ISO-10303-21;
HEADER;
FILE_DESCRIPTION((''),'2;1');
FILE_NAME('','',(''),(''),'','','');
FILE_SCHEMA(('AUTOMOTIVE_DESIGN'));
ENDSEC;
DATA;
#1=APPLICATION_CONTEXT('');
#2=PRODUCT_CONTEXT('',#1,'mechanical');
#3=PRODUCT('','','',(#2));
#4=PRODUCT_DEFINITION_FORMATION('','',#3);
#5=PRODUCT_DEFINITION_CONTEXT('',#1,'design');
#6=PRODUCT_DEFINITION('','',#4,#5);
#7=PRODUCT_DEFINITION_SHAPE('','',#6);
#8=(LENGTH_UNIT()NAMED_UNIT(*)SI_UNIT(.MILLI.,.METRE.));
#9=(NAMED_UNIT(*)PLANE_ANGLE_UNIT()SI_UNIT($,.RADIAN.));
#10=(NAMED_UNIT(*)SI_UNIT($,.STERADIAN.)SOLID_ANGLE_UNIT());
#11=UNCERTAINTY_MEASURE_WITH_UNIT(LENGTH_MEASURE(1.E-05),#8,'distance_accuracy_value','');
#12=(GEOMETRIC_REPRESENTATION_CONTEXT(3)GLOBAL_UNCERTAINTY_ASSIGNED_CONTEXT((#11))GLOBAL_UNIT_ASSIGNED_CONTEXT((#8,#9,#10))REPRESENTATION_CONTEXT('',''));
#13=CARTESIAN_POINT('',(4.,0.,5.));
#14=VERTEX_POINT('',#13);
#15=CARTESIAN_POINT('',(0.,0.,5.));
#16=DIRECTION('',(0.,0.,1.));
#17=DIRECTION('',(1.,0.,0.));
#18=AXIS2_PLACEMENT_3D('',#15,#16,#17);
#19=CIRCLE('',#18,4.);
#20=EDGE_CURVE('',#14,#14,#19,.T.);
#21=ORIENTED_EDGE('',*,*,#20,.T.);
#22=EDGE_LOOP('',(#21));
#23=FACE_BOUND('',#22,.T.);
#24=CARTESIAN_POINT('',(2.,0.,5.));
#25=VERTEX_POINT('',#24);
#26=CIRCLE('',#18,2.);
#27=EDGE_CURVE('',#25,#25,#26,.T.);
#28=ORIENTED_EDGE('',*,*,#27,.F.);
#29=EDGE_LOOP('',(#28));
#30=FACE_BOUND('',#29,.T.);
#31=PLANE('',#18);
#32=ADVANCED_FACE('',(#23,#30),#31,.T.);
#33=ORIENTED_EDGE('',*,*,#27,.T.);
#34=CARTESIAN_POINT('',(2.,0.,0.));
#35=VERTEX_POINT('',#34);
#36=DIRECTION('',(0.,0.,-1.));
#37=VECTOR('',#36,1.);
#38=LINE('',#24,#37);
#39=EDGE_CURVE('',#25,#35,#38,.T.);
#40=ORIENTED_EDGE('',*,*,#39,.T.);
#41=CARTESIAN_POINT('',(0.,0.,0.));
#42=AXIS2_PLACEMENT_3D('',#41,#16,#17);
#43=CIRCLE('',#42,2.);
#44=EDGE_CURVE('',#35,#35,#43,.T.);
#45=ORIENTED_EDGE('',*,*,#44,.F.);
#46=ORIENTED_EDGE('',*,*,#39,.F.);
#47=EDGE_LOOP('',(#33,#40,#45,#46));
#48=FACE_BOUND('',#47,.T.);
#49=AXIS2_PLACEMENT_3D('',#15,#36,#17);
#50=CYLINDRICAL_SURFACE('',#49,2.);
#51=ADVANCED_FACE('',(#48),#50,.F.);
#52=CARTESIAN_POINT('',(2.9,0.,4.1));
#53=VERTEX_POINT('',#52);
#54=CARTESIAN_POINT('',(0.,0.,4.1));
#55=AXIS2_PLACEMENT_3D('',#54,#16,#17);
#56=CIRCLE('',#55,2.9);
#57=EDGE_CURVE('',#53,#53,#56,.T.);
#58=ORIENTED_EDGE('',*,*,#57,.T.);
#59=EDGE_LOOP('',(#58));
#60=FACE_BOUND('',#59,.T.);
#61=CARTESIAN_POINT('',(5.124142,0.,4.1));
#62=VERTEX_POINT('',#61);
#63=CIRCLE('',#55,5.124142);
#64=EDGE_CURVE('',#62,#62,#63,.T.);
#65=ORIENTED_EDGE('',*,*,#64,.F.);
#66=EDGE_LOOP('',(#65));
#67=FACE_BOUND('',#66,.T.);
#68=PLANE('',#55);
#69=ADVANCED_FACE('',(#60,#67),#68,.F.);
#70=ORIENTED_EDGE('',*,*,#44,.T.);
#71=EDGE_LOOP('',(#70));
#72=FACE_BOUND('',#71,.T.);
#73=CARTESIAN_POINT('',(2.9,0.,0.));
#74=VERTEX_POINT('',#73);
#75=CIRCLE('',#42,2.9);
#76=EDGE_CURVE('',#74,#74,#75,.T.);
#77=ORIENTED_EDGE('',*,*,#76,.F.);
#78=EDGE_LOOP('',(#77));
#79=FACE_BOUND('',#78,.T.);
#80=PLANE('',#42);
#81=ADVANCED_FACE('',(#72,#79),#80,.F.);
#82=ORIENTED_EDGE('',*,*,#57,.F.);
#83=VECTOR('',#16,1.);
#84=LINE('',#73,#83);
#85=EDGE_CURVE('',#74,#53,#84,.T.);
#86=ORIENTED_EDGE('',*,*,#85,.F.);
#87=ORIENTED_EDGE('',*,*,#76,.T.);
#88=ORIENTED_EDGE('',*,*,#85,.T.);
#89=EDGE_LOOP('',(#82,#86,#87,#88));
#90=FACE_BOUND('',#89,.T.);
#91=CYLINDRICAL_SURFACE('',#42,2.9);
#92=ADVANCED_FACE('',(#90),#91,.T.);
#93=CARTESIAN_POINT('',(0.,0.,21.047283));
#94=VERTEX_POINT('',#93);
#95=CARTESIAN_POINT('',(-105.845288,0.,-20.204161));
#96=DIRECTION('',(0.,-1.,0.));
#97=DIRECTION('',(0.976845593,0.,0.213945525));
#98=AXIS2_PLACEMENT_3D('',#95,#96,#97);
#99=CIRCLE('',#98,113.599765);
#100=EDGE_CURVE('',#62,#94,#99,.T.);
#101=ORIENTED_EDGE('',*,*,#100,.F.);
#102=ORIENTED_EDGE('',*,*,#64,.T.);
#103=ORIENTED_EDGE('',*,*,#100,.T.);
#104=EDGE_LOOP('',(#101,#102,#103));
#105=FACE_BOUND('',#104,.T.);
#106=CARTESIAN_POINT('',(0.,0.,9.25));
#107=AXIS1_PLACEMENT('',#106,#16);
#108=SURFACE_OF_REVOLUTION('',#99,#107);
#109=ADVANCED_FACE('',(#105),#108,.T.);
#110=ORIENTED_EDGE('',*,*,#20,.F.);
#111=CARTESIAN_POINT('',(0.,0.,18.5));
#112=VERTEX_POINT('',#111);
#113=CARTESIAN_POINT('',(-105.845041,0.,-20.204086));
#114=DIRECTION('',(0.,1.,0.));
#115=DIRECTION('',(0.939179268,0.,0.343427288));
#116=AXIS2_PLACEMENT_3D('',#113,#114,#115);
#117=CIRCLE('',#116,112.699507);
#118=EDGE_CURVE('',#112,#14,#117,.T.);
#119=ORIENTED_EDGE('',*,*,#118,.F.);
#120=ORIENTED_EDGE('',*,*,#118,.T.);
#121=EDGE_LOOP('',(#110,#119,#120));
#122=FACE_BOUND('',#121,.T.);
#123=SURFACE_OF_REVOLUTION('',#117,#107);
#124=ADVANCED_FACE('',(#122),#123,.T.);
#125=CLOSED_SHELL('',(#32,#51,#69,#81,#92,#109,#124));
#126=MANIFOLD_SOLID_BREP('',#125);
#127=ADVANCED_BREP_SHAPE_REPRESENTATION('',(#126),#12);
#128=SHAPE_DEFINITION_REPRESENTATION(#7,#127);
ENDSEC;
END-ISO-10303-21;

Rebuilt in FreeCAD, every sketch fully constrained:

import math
import FreeCAD as App
import Part
import Sketcher

V = App.Vector

doc = App.newDocument("Part")
body = doc.addObject("PartDesign::Body", "Body")

# Sketch on XZ plane
sketch1 = body.newObject("Sketcher::SketchObject", "Sketch")
sketch1.AttachmentSupport = (doc.getObject("XZ_Plane"), [""])
sketch1.MapMode = "FlatFace"
sketch1.addGeometry([
    Part.LineSegment(V(0, 21.047283, 0), V(0, 18.5, 0)),  # 0
    Part.ArcOfCircle(Part.Circle(V(-105.845041, -20.204086, 0), V(0, 0, 1), 112.699507), math.radians(12.922902), math.radians(20.085821)),  # 1
    Part.LineSegment(V(4, 5, 0), V(2, 5, 0)),  # 2
    Part.LineSegment(V(2, 5, 0), V(2, 0, 0)),  # 3
    Part.LineSegment(V(2, 0, 0), V(2.9, 0, 0)),  # 4
    Part.LineSegment(V(2.9, 0, 0), V(2.9, 4.1, 0)),  # 5
    Part.LineSegment(V(2.9, 4.1, 0), V(5.124142, 4.1, 0)),  # 6
    Part.ArcOfCircle(Part.Circle(V(-105.845288, -20.204161, 0), V(0, 0, 1), 113.599765), math.radians(12.353671), math.radians(21.292524)),  # 7
], False)
sketch1.addConstraint([
    Sketcher.Constraint("Coincident", 0, 2, 1, 2),
    Sketcher.Constraint("Coincident", 1, 1, 2, 1),
    Sketcher.Constraint("Coincident", 2, 2, 3, 1),
    Sketcher.Constraint("Coincident", 3, 2, 4, 1),
    Sketcher.Constraint("Coincident", 4, 2, 5, 1),
    Sketcher.Constraint("Coincident", 5, 2, 6, 1),
    Sketcher.Constraint("Coincident", 6, 2, 7, 1),
    Sketcher.Constraint("Coincident", 7, 2, 0, 1),
    Sketcher.Constraint("Vertical", 0),
    Sketcher.Constraint("Horizontal", 2),
    Sketcher.Constraint("Vertical", 3),
    Sketcher.Constraint("Horizontal", 4),
    Sketcher.Constraint("Vertical", 5),
    Sketcher.Constraint("Horizontal", 6),
    Sketcher.Constraint("PointOnObject", 0, 2, -2),
    Sketcher.Constraint("PointOnObject", 3, 2, -1),
    Sketcher.Constraint("DistanceX", 2, 2, 2, 1, 2.0),
    Sketcher.Constraint("DistanceY", 3, 2, 3, 1, 5.0),
    Sketcher.Constraint("DistanceX", 4, 1, 4, 2, 0.9),
    Sketcher.Constraint("DistanceY", 5, 1, 5, 2, 4.1),
    Sketcher.Constraint("DistanceX", -1, 1, 1, 1, 4.0),
    Sketcher.Constraint("DistanceY", -1, 1, 0, 2, 18.5),
    Sketcher.Constraint("Radius", 1, 112.699507),
    Sketcher.Constraint("Radius", 7, 113.599765),
    Sketcher.Constraint("DistanceX", 6, 1, 6, 2, 2.224142),
    Sketcher.Constraint("DistanceY", 0, 2, 0, 1, 2.547283),
])
revolution = body.newObject("PartDesign::Revolution", "Revolution")
revolution.Profile = sketch1
revolution.ReferenceAxis = (sketch1, ["V_Axis"])
revolution.Angle = 360

doc.recompute()
